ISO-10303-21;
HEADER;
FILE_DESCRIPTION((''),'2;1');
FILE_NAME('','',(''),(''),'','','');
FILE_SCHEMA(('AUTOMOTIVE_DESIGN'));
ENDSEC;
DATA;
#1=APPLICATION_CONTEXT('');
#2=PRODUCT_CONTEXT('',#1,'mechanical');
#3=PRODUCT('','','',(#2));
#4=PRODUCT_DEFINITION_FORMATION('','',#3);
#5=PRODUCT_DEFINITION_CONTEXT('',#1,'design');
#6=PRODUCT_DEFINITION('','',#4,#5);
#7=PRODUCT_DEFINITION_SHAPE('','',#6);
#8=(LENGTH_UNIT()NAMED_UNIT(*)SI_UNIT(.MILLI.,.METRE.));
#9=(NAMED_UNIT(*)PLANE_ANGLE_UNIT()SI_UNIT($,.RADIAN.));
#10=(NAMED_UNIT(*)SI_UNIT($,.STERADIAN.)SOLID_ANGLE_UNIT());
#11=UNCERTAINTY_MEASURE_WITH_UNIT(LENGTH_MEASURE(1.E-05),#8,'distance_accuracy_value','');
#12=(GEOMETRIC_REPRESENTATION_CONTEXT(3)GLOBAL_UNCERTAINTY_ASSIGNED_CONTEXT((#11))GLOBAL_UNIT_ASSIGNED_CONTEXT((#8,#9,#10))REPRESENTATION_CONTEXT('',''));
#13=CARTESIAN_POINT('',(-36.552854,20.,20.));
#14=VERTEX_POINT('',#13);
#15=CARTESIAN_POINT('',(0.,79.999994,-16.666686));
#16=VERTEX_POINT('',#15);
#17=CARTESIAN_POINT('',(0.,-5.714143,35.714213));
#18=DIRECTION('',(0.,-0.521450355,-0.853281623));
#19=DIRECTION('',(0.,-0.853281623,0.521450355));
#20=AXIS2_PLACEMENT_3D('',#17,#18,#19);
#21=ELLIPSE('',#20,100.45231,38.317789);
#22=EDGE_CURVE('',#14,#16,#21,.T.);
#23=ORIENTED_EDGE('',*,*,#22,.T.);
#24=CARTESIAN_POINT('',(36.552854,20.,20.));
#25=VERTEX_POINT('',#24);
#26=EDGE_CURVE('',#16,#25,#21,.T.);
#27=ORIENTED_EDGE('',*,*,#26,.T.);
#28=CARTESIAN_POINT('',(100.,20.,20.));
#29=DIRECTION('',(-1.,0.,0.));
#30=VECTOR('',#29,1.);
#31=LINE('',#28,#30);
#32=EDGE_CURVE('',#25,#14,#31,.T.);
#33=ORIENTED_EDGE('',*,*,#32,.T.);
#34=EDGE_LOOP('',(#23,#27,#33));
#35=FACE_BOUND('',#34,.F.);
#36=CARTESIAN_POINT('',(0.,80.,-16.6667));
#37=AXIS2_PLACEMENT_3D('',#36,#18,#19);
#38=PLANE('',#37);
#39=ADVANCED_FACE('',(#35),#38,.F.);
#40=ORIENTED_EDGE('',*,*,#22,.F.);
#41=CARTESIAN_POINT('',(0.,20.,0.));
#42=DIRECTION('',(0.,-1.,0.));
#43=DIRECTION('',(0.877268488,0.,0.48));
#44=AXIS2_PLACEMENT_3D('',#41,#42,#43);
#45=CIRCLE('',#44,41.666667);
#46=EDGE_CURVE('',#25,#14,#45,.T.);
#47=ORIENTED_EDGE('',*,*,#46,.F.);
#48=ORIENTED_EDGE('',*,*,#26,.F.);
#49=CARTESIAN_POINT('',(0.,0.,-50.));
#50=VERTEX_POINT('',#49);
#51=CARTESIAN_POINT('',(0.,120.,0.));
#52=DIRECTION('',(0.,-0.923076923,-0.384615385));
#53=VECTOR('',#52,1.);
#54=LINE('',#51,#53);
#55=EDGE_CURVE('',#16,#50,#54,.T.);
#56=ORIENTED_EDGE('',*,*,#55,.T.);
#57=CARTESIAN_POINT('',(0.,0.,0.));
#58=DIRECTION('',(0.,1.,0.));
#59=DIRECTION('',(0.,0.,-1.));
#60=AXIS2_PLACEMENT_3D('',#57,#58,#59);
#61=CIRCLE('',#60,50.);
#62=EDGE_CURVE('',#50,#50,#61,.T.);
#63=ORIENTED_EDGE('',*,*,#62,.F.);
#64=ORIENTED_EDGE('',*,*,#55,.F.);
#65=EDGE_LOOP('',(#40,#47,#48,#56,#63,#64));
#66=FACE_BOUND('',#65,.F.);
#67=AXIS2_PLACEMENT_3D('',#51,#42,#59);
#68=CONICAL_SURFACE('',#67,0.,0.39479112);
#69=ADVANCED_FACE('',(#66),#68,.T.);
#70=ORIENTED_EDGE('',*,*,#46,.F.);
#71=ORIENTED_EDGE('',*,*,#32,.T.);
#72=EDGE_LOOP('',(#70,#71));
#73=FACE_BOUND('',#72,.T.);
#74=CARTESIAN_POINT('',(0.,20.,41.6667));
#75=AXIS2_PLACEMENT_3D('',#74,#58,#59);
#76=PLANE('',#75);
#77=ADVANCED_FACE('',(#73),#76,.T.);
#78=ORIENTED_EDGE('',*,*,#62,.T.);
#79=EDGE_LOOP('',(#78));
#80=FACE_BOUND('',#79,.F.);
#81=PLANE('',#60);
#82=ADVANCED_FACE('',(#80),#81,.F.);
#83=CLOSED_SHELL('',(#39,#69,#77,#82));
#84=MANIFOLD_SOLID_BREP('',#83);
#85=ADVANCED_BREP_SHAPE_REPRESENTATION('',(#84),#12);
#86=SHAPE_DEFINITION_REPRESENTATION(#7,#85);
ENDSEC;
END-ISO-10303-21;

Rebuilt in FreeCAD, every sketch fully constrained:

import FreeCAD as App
import Part
import Sketcher
from FreeCAD import Vector
Q = App.Units.Quantity

doc = App.newDocument("Part")
body = doc.addObject("PartDesign::Body", "Body")

# Sketch on YZ plane
sketch1 = body.newObject("Sketcher::SketchObject", "Sketch")
sketch1.AttachmentSupport = (doc.getObject("YZ_Plane"), [""])
sketch1.MapMode = "FlatFace"
sketch1.addGeometry(Part.LineSegment(Vector(120, 0, 0), Vector(0, 0, 0)), False)
sketch1.addGeometry(Part.LineSegment(Vector(0, 0, 0), Vector(0, -50, 0)), False)
sketch1.addGeometry(Part.LineSegment(Vector(0, -50, 0), Vector(120, 0, 0)), False)
sketch1.addConstraint(Sketcher.Constraint("Coincident", 0, 2, 1, 1))
sketch1.addConstraint(Sketcher.Constraint("Coincident", 1, 2, 2, 1))
sketch1.addConstraint(Sketcher.Constraint("Coincident", 2, 2, 0, 1))
sketch1.addConstraint(Sketcher.Constraint("Horizontal", 0))
sketch1.addConstraint(Sketcher.Constraint("Vertical", 1))
sketch1.addConstraint(Sketcher.Constraint("Coincident", 0, 2, -1, 1))
sketch1.addConstraint(Sketcher.Constraint("DistanceX", 0, 2, 0, 1, Q("4.7244 in")))
sketch1.addConstraint(Sketcher.Constraint("DistanceY", 1, 2, 1, 1, Q("1.9685 in")))
revolution = body.newObject("PartDesign::Revolution", "Revolution")
revolution.Profile = sketch1
revolution.ReferenceAxis = (sketch1, ["H_Axis"])
revolution.Angle = 360

# Sketch on YZ plane
sketch2 = body.newObject("Sketcher::SketchObject", "Sketch001")
sketch2.AttachmentSupport = (doc.getObject("YZ_Plane"), [""])
sketch2.MapMode = "FlatFace"
sketch2.addGeometry(Part.LineSegment(Vector(20, 20, 0), Vector(80, -16.6667, 0)), False)
sketch2.addGeometry(Part.LineSegment(Vector(79.999988, -16.666672, 0), Vector(120, 0, 0)), False)
sketch2.addGeometry(Part.LineSegment(Vector(120, 0, 0), Vector(19.999988, 41.666672, 0)), False)
sketch2.addGeometry(Part.LineSegment(Vector(20, 41.6667, 0), Vector(20, 20, 0)), False)
sketch2.addConstraint(Sketcher.Constraint("Coincident", 0, 2, 1, 1))
sketch2.addConstraint(Sketcher.Constraint("Coincident", 1, 2, 2, 1))
sketch2.addConstraint(Sketcher.Constraint("Coincident", 2, 2, 3, 1))
sketch2.addConstraint(Sketcher.Constraint("Coincident", 3, 2, 0, 1))
sketch2.addConstraint(Sketcher.Constraint("Vertical", 3))
sketch2.addConstraint(Sketcher.Constraint("PointOnObject", 1, 2, -1))
sketch2.addConstraint(Sketcher.Constraint("Angle", 0, Q("-31.4296 deg")))
sketch2.addConstraint(Sketcher.Constraint("Angle", 1, Q("22.6199 deg")))
sketch2.addConstraint(Sketcher.Constraint("Angle", 2, Q("157.3801 deg")))
sketch2.addConstraint(Sketcher.Constraint("DistanceX", 2, 2, 1, 2, Q("3.937 in")))
sketch2.addConstraint(Sketcher.Constraint("DistanceY", 3, 2, 3, 1, Q("21.6667 mm")))
sketch2.addConstraint(Sketcher.Constraint("DistanceX", -1, 1, 0, 2, Q("3.1496 in")))
pocket1 = body.newObject("PartDesign::Pocket", "Pocket")
pocket1.Profile = sketch2
pocket1.Length = 200
pocket1.Midplane = True

doc.recompute()
